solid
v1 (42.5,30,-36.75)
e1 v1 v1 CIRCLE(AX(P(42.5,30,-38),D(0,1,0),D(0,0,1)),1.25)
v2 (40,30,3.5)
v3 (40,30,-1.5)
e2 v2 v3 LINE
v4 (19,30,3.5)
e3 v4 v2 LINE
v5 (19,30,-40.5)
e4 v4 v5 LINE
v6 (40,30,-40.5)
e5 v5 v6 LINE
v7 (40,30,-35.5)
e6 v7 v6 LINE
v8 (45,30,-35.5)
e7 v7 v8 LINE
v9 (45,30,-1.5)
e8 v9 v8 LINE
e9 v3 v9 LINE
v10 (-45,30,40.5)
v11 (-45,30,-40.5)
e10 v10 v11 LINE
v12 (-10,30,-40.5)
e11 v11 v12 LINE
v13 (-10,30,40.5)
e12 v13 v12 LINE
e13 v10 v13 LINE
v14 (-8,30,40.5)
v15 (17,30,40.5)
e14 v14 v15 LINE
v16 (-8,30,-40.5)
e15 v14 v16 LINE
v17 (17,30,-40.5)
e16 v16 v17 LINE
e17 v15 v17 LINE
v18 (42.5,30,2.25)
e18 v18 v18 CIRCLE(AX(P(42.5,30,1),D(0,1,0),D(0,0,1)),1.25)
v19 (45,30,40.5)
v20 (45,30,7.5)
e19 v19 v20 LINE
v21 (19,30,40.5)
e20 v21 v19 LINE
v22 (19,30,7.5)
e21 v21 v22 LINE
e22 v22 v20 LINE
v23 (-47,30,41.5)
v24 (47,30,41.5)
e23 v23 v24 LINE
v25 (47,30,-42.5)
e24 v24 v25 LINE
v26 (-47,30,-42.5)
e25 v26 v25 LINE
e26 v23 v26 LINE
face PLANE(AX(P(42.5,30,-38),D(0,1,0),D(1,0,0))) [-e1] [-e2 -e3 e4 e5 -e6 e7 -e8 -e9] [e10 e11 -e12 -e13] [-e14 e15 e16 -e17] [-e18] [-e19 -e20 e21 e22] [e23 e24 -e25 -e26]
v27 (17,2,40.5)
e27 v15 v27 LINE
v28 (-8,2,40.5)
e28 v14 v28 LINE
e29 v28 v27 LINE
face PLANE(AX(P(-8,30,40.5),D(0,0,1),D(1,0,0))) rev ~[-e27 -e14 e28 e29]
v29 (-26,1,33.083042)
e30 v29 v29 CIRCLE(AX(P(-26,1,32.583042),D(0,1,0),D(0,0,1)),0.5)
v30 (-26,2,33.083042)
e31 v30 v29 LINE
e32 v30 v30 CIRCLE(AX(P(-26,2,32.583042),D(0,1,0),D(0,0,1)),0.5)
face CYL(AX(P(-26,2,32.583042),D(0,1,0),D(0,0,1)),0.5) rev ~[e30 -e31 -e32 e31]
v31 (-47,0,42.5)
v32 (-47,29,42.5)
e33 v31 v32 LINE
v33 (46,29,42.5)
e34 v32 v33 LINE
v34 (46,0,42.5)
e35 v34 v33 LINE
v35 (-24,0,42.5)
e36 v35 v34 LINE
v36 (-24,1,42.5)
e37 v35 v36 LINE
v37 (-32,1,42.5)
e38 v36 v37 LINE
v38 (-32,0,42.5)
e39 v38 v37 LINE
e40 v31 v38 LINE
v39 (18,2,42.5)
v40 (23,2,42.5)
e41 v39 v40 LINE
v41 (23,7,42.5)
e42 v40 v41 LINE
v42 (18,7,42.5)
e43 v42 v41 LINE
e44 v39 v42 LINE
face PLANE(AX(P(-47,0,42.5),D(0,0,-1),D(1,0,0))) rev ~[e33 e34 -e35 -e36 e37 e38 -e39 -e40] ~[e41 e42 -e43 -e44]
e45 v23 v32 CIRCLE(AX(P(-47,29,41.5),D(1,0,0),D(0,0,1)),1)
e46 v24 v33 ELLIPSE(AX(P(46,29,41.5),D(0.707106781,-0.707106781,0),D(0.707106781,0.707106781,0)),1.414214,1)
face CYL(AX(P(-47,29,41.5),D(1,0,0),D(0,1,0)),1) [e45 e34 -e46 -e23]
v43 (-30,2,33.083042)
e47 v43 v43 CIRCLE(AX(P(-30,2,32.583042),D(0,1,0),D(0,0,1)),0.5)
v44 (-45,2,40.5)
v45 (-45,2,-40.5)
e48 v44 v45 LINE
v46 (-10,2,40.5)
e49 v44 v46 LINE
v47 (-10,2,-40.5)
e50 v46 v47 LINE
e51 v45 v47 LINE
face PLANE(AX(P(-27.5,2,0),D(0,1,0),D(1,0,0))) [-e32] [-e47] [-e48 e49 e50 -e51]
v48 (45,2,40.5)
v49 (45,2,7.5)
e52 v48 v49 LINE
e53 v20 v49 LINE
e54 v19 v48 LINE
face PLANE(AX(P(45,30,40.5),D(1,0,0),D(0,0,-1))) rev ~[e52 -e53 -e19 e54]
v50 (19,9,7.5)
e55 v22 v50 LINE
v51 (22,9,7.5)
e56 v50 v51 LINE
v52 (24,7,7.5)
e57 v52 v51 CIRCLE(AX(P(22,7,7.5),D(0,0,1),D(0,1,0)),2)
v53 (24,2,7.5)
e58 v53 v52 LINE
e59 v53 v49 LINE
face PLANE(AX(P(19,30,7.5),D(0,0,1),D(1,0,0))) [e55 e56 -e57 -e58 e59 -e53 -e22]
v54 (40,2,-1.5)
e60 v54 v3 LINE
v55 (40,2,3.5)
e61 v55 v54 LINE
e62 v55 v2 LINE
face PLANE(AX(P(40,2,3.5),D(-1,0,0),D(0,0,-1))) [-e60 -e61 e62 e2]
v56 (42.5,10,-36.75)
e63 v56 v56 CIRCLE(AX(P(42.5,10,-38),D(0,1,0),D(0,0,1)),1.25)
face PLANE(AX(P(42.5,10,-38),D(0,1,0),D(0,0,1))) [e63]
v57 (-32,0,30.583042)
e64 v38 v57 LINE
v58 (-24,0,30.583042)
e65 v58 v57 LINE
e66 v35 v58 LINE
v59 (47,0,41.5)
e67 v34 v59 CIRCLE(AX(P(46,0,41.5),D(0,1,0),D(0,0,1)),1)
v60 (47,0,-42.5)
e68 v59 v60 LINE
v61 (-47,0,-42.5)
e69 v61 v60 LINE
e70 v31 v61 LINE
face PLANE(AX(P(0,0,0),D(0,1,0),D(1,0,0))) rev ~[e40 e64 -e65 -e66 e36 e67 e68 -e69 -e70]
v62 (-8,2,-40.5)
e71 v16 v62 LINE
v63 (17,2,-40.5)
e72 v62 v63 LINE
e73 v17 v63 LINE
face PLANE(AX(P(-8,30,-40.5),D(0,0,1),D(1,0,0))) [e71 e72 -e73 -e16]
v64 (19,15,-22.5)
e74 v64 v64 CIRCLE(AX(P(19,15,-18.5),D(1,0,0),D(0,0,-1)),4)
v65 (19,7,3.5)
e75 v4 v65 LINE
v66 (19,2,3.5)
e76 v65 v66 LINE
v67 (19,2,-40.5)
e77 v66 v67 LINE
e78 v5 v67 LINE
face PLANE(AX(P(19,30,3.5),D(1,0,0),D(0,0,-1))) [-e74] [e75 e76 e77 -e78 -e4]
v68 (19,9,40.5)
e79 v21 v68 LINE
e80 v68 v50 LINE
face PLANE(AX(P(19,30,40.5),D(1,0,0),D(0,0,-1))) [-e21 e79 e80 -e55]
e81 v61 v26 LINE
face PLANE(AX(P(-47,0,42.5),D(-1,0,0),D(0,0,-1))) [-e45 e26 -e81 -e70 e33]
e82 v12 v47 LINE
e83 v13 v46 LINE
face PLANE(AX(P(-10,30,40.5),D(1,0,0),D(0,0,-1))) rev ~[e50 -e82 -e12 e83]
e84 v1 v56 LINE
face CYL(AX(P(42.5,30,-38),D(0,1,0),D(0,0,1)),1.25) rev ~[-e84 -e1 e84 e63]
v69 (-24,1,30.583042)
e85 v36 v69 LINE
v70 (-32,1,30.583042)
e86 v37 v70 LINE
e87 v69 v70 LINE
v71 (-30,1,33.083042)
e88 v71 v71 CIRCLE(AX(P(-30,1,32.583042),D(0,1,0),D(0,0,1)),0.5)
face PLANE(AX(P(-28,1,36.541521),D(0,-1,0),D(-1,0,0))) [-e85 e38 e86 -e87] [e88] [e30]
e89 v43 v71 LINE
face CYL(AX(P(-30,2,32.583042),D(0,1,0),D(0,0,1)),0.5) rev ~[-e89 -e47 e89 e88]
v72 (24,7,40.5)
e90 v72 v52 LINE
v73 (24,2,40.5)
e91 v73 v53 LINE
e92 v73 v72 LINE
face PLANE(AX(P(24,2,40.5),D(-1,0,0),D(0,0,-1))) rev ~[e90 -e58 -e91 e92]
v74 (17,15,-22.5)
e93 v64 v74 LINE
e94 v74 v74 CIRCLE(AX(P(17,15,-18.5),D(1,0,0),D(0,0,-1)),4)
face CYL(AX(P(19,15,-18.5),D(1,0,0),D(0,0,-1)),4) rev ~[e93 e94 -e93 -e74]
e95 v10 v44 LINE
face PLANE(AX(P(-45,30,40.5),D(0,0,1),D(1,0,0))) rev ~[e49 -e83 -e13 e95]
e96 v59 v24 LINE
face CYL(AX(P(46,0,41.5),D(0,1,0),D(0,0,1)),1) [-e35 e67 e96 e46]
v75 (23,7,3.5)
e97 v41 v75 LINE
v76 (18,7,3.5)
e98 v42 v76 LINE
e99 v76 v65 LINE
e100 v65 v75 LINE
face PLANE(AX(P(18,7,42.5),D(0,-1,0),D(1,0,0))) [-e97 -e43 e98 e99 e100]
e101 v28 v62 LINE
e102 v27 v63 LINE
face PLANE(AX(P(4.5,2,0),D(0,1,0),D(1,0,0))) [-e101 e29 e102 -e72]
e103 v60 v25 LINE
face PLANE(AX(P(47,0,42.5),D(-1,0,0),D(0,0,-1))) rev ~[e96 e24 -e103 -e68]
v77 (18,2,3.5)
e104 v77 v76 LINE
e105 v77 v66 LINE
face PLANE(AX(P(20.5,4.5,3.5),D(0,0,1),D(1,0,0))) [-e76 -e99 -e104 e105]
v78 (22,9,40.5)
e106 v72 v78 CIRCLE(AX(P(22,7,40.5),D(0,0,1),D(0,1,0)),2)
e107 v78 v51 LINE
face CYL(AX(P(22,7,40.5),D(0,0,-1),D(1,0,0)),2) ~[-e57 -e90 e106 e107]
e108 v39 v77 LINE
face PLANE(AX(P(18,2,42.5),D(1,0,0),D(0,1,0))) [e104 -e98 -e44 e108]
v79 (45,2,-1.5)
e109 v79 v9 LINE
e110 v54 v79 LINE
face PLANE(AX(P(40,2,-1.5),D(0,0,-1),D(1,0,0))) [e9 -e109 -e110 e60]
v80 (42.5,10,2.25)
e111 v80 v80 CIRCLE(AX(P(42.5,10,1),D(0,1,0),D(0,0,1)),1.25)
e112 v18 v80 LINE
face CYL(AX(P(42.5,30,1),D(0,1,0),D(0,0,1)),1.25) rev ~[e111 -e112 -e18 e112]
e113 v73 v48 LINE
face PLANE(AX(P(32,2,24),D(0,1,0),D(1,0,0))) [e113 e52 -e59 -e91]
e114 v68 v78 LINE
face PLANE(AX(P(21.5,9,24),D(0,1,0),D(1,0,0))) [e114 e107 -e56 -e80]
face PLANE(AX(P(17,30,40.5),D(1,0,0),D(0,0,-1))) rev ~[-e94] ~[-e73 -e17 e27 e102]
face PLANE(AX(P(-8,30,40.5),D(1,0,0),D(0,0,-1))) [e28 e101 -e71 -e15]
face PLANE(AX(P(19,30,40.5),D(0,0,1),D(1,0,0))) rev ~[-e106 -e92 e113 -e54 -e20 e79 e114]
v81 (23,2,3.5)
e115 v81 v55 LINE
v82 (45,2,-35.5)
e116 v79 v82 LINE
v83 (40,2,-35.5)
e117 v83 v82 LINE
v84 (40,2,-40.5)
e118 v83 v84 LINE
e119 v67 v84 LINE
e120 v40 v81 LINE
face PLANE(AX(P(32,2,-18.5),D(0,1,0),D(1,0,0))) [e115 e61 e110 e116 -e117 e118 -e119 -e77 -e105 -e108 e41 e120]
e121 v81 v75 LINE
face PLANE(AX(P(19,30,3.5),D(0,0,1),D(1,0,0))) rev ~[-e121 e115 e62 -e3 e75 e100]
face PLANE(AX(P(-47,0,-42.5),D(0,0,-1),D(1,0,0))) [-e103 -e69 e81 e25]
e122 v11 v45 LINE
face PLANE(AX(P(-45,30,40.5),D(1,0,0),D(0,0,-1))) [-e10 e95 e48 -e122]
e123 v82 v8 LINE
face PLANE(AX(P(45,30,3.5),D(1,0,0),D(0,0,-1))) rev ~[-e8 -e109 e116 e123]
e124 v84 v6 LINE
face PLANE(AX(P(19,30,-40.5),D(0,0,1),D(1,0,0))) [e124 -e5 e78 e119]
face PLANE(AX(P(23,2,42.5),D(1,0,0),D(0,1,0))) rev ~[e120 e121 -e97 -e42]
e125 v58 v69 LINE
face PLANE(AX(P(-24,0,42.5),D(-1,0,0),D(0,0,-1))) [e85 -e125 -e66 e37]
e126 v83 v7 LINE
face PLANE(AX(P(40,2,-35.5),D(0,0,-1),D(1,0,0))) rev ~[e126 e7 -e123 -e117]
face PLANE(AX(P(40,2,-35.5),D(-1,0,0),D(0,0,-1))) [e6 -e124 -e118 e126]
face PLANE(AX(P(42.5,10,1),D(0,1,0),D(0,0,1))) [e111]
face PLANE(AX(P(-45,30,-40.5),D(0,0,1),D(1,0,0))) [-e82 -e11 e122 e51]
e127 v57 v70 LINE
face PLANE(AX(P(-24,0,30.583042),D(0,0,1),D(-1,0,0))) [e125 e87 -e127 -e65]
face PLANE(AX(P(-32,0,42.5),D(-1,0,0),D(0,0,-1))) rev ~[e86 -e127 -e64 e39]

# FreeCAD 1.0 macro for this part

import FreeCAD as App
import Part
import Sketcher
from FreeCAD import Vector


def edges_at(feature, points):
    """Names of the edges that pass closest to the given points."""
    edges = feature.Shape.Edges
    near = lambda p: min(range(len(edges)), key=lambda i: edges[i].distToShape(Part.Vertex(*p))[0])
    return sorted({f"Edge{near(p) + 1}" for p in points})


def add_polygon(sketch, points):
    """Adds a closed chain of lines whose ends are joined by coincident constraints."""
    first, n = sketch.GeometryCount, len(points)
    for a, b in zip(points, points[1:] + points[:1]):
        sketch.addGeometry(Part.LineSegment(App.Vector(*a, 0), App.Vector(*b, 0)), False)
    for i in range(n):
        sketch.addConstraint(Sketcher.Constraint("Coincident", first + i, 2, first + (i + 1) % n, 1))

doc = App.newDocument("Part")
body = doc.addObject("PartDesign::Body", "Body")

# Sketch on XZ plane
sketch1 = body.newObject("Sketcher::SketchObject", "Sketch")
sketch1.AttachmentSupport = (doc.getObject("XZ_Plane"), [""])
sketch1.MapMode = "FlatFace"
add_polygon(sketch1, [(-47, -42), (-47, 42), (47, 42), (47, -42)])  # lines 0-3
sketch1.addConstraint([
    Sketcher.Constraint("Vertical", 0),
    Sketcher.Constraint("Horizontal", 1),
    Sketcher.Constraint("Vertical", 2),
    Sketcher.Constraint("Horizontal", 3),
    Sketcher.Constraint("Symmetric", 0, 2, 2, 2, -1, 1),
    Sketcher.Constraint("DistanceX", 1, 1, 1, 2, 94.0),
    Sketcher.Constraint("DistanceY", 0, 1, 0, 2, 85.0),
])
pad1 = body.newObject("PartDesign::Pad", "Pad")
pad1.Profile = sketch1
pad1.Length = 30
pad1.Reversed = True

# Sketch on XZ plane
sketch2 = body.newObject("Sketcher::SketchObject", "Sketch001")
sketch2.AttachmentSupport = (doc.getObject("XZ_Plane"), [""])
sketch2.MapMode = "FlatFace"
sketch2.AttachmentOffset = App.Placement(Vector(0, 0, -30), App.Rotation())
add_polygon(sketch2, [(-45, -40), (-45, 40), (-10, 40), (-10, -40)])  # lines 0-3
add_polygon(sketch2, [(-8, -40), (-8, 40), (17, 40), (17, -40)])  # lines 4-7
add_polygon(sketch2, [(19, 8), (19, 40), (45, 40), (45, 8)])  # lines 8-11
add_polygon(sketch2, [(19, -40), (19, 4), (45, 4), (45, -40)])  # lines 12-15
sketch2.addConstraint([
    Sketcher.Constraint("Vertical", 0),
    Sketcher.Constraint("Horizontal", 1),
    Sketcher.Constraint("Vertical", 2),
    Sketcher.Constraint("Horizontal", 3),
    Sketcher.Constraint("Vertical", 4),
    Sketcher.Constraint("Horizontal", 5),
    Sketcher.Constraint("Vertical", 6),
    Sketcher.Constraint("Horizontal", 7),
    Sketcher.Constraint("Vertical", 8),
    Sketcher.Constraint("Horizontal", 9),
    Sketcher.Constraint("Vertical", 10),
    Sketcher.Constraint("Horizontal", 11),
    Sketcher.Constraint("Vertical", 12),
    Sketcher.Constraint("Horizontal", 13),
    Sketcher.Constraint("Vertical", 14),
    Sketcher.Constraint("Horizontal", 15),
    Sketcher.Constraint("Symmetric", 3, 2, 9, 2, -1, 1),
    Sketcher.Constraint("Symmetric", 0, 2, 14, 2, -1, 1),
    Sketcher.Constraint("Symmetric", 8, 2, 15, 2, -1),
    Sketcher.Constraint("Horizontal", 1, 2, 4, 2),
    Sketcher.Constraint("Horizontal", 3, 2, 6, 2),
    Sketcher.Constraint("DistanceX", 1, 1, 1, 2, 35.0),
    Sketcher.Constraint("DistanceX", 5, 1, 5, 2, 25.0),
    Sketcher.Constraint("DistanceX", 9, 1, 9, 2, 26.0),
    Sketcher.Constraint("DistanceY", 0, 1, 0, 2, 81.0),
    Sketcher.Constraint("DistanceY", 8, 1, 8, 2, 33.0),
    Sketcher.Constraint("DistanceY", 12, 1, 12, 2, 44.0),
    Sketcher.Constraint("DistanceX", 0, 2, -1, 1, 45.0),
    Sketcher.Constraint("DistanceX", 4, 2, -1, 1, 8.0),
])
pocket1 = body.newObject("PartDesign::Pocket", "Pocket")
pocket1.Profile = sketch2
pocket1.Length = 28
pocket1.Reversed = True

# Sketch on XZ plane
sketch3 = body.newObject("Sketcher::SketchObject", "Sketch002")
sketch3.AttachmentSupport = (doc.getObject("XZ_Plane"), [""])
sketch3.MapMode = "FlatFace"
sketch3.AttachmentOffset = App.Placement(Vector(0, 0, -2), App.Rotation())
sketch3.addGeometry([
    Part.Circle(Vector(-30, 32.6, 0), Vector(0, 0, 1), 0.5),
    Part.Circle(Vector(-26, 32.6, 0), Vector(0, 0, 1), 0.5),
], False)
sketch3.addConstraint([
    Sketcher.Constraint("Equal", 0, 1),
    Sketcher.Constraint("Horizontal", 0, 3, 1, 3),
    Sketcher.Constraint("Diameter", 0, 1.0),
    Sketcher.Constraint("DistanceX", 0, 3, -1, 1, 30.0),
    Sketcher.Constraint("DistanceX", 1, 3, -1, 1, 26.0),
    Sketcher.Constraint("DistanceY", -1, 1, 0, 3, 32.583042),
])
pocket2 = body.newObject("PartDesign::Pocket", "Pocket001")
pocket2.Profile = sketch3
pocket2.Length = 28
pocket2.Reversed = True

# Sketch on XZ plane
sketch4 = body.newObject("Sketcher::SketchObject", "Sketch003")
sketch4.AttachmentSupport = (doc.getObject("XZ_Plane"), [""])
sketch4.MapMode = "FlatFace"
add_polygon(sketch4, [(-24, 31), (-24, 42), (-32, 42), (-32, 31)])  # lines 0-3
sketch4.addConstraint([
    Sketcher.Constraint("Vertical", 0),
    Sketcher.Constraint("Horizontal", 1),
    Sketcher.Constraint("Vertical", 2),
    Sketcher.Constraint("Horizontal", 3),
    Sketcher.Constraint("DistanceX", 1, 2, 1, 1, 8.0),
    Sketcher.Constraint("DistanceX", 0, 2, -1, 1, 24.0),
    Sketcher.Constraint("DistanceY", -1, 1, 0, 2, 42.5),
    Sketcher.Constraint("DistanceY", 0, 1, 0, 2, 11.916958),
])
pocket3 = body.newObject("PartDesign::Pocket", "Pocket002")
pocket3.Profile = sketch4
pocket3.Length = 1

# Sketch on YZ plane
sketch5 = body.newObject("Sketcher::SketchObject", "Sketch004")
sketch5.AttachmentSupport = (doc.getObject("YZ_Plane"), [""])
sketch5.MapMode = "FlatFace"
sketch5.AttachmentOffset = App.Placement(Vector(0, 0, 19), App.Rotation())
sketch5.addGeometry(Part.Circle(Vector(15, -18.5, 0), Vector(0, 0, 1), 4), False)
sketch5.addConstraint([
    Sketcher.Constraint("Diameter", 0, 8.0),
    Sketcher.Constraint("DistanceX", -1, 1, 0, 3, 15.0),
    Sketcher.Constraint("DistanceY", 0, 3, -1, 1, 18.5),
])
pocket4 = body.newObject("PartDesign::Pocket", "Pocket003")
pocket4.Profile = sketch5
pocket4.Length = 2

# Sketch on XZ plane
sketch6 = body.newObject("Sketcher::SketchObject", "Sketch005")
sketch6.AttachmentSupport = (doc.getObject("XZ_Plane"), [""])
sketch6.MapMode = "FlatFace"
sketch6.AttachmentOffset = App.Placement(Vector(0, 0, -2), App.Rotation())
add_polygon(sketch6, [(40, -40), (40, -36), (45, -36), (45, -40)])  # lines 0-3
add_polygon(sketch6, [(40, -2), (40, 4), (45, 4), (45, -2)])  # lines 4-7
sketch6.addConstraint([
    Sketcher.Constraint("Vertical", 0),
    Sketcher.Constraint("Horizontal", 1),
    Sketcher.Constraint("Vertical", 2),
    Sketcher.Constraint("Horizontal", 3),
    Sketcher.Constraint("Vertical", 4),
    Sketcher.Constraint("Horizontal", 5),
    Sketcher.Constraint("Vertical", 6),
    Sketcher.Constraint("Horizontal", 7),
    Sketcher.Constraint("Vertical", 3, 2, 4, 2),
    Sketcher.Constraint("Vertical", 2, 2, 5, 2),
    Sketcher.Constraint("Equal", 7, 0),
    Sketcher.Constraint("Equal", 2, 4),
    Sketcher.Constraint("DistanceX", 1, 1, 1, 2, 5.0),
    Sketcher.Constraint("DistanceX", -1, 1, 0, 2, 40.0),
    Sketcher.Constraint("DistanceY", 0, 2, 4, 2, 39.0),
    Sketcher.Constraint("DistanceY", 0, 2, -1, 1, 35.5),
])
pad2 = body.newObject("PartDesign::Pad", "Pad001")
pad2.Profile = sketch6
pad2.Length = 28
pad2.Reversed = True

# Sketch on XZ plane
sketch7 = body.newObject("Sketcher::SketchObject", "Sketch006")
sketch7.AttachmentSupport = (doc.getObject("XZ_Plane"), [""])
sketch7.MapMode = "FlatFace"
sketch7.AttachmentOffset = App.Placement(Vector(0, 0, -30), App.Rotation())
sketch7.addGeometry([
    Part.Circle(Vector(42.5, -38, 0), Vector(0, 0, 1), 1.2),
    Part.Circle(Vector(42.5, 1, 0), Vector(0, 0, 1), 1.2),
], False)
sketch7.addConstraint([
    Sketcher.Constraint("Equal", 0, 1),
    Sketcher.Constraint("Vertical", 0, 3, 1, 3),
    Sketcher.Constraint("Diameter", 0, 2.5),
    Sketcher.Constraint("DistanceY", 0, 3, -1, 1, 38.0),
    Sketcher.Constraint("DistanceY", -1, 1, 1, 3, 1.0),
    Sketcher.Constraint("DistanceX", -1, 1, 0, 3, 42.5),
])
pocket5 = body.newObject("PartDesign::Pocket", "Pocket004")
pocket5.Profile = sketch7
pocket5.Length = 20
pocket5.Reversed = True
doc.recompute()

fillet = body.newObject("PartDesign::Fillet", "Fillet")
fillet.Base = (pocket5, edges_at(pocket5, [(0, 30, 42.5), (47, 15, 42.5)]))
fillet.Radius = 1

# Sketch on XZ plane
sketch8 = body.newObject("Sketcher::SketchObject", "Sketch007")
sketch8.AttachmentSupport = (doc.getObject("XZ_Plane"), [""])
sketch8.MapMode = "FlatFace"
sketch8.AttachmentOffset = App.Placement(Vector(0, 0, -2), App.Rotation())
add_polygon(sketch8, [(19, 8), (19, 40), (24, 40), (24, 8)])  # lines 0-3
sketch8.addConstraint([
    Sketcher.Constraint("Vertical", 0),
    Sketcher.Constraint("Horizontal", 1),
    Sketcher.Constraint("Vertical", 2),
    Sketcher.Constraint("Horizontal", 3),
    Sketcher.Constraint("DistanceX", 1, 1, 1, 2, 5.0),
    Sketcher.Constraint("DistanceY", 0, 1, 0, 2, 33.0),
    Sketcher.Constraint("DistanceX", -1, 1, 0, 2, 19.0),
    Sketcher.Constraint("DistanceY", -1, 1, 0, 2, 40.5),
])
pad3 = body.newObject("PartDesign::Pad", "Pad002")
pad3.Profile = sketch8
pad3.Length = 7
pad3.Reversed = True

# Sketch on XY plane
sketch9 = body.newObject("Sketcher::SketchObject", "Sketch008")
sketch9.AttachmentSupport = (doc.getObject("XY_Plane"), [""])
sketch9.MapMode = "FlatFace"
sketch9.AttachmentOffset = App.Placement(Vector(0, 0, 42.5), App.Rotation())
add_polygon(sketch9, [(18, 7), (18, 2), (23, 2), (23, 7)])  # lines 0-3
sketch9.addConstraint([
    Sketcher.Constraint("Vertical", 0),
    Sketcher.Constraint("Horizontal", 1),
    Sketcher.Constraint("Vertical", 2),
    Sketcher.Constraint("Horizontal", 3),
    Sketcher.Constraint("Equal", 3, 0),
    Sketcher.Constraint("DistanceX", 1, 1, 1, 2, 5.0),
    Sketcher.Constraint("DistanceX", -1, 1, 0, 2, 18.0),
    Sketcher.Constraint("DistanceY", -1, 1, 0, 2, 2.0),
])
pocket6 = body.newObject("PartDesign::Pocket", "Pocket005")
pocket6.Profile = sketch9
pocket6.Length = 39
doc.recompute()

fillet2 = body.newObject("PartDesign::Fillet", "Fillet001")
fillet2.Base = (pocket6, edges_at(pocket6, [(24, 9, 24)]))
fillet2.Radius = 2

doc.recompute()
